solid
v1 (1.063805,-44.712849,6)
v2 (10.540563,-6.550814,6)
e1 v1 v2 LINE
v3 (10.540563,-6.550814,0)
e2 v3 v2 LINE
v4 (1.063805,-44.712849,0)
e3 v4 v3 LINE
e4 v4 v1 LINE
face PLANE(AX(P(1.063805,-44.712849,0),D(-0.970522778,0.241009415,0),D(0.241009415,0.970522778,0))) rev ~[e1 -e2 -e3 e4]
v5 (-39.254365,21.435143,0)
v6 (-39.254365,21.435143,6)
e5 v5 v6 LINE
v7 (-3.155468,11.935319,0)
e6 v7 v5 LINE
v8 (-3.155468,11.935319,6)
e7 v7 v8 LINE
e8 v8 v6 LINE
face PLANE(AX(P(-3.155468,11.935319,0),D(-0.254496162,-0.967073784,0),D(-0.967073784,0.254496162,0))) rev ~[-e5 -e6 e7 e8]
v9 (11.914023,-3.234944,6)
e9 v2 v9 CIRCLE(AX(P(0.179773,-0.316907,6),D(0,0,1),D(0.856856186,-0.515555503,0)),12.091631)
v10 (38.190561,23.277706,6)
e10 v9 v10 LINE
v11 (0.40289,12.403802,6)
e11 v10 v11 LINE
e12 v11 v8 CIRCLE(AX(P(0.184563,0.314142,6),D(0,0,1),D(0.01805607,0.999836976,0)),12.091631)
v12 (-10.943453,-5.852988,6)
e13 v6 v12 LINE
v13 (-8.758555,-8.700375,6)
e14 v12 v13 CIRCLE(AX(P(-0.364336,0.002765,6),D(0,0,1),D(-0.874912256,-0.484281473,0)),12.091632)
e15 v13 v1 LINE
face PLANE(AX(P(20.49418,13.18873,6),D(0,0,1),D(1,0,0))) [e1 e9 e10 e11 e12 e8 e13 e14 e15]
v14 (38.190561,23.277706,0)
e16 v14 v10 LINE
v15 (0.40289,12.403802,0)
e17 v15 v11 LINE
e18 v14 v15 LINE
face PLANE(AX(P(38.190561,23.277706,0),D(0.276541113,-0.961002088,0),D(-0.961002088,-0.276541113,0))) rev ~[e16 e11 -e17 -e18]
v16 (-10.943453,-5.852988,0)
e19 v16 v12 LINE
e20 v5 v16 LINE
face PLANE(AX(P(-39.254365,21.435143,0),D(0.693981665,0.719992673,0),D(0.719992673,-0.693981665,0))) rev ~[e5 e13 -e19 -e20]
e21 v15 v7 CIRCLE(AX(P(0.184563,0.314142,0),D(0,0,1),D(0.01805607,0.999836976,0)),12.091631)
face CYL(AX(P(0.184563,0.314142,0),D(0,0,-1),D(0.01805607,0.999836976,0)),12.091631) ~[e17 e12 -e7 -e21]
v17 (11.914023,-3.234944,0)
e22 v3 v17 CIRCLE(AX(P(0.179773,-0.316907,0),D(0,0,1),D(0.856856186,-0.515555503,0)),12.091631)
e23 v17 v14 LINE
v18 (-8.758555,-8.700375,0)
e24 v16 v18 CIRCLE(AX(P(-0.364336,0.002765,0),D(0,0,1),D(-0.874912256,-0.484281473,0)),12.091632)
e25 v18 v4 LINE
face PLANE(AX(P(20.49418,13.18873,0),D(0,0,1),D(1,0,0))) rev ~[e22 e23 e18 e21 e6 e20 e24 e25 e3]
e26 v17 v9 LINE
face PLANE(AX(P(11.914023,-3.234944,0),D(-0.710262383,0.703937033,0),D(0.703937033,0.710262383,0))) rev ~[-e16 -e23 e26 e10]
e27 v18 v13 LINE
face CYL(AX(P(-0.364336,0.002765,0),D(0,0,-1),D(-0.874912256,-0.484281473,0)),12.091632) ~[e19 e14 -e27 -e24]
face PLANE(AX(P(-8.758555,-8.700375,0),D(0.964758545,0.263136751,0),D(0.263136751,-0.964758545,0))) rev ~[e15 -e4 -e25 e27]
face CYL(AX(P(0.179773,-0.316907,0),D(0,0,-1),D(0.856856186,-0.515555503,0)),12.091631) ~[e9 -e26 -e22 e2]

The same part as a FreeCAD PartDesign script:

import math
import FreeCAD as App
import Part
import Sketcher

V = App.Vector

doc = App.newDocument("Part")
body = doc.addObject("PartDesign::Body", "Body")

# Sketch on XY plane
sketch1 = body.newObject("Sketcher::SketchObject", "Sketch")
sketch1.AttachmentSupport = (doc.getObject("XY_Plane"), [""])
sketch1.MapMode = "FlatFace"
sketch1.addGeometry(Part.ArcOfCircle(Part.Circle(V(0.2, 0.3, 0), V(0, 0, 1), 12.1), math.radians(88.97), math.radians(106.04)), False)
sketch1.addGeometry(Part.LineSegment(V(-3.2, 11.9, 0), V(-39.3, 21.4, 0)), False)
sketch1.addGeometry(Part.LineSegment(V(-39.3, 21.4, 0), V(-10.9, -5.9, 0)), False)
sketch1.addGeometry(Part.ArcOfCircle(Part.Circle(V(-0.4, 0, 0), V(0, 0, 1), 12.1), math.radians(-151.03), math.radians(-133.96)), False)
sketch1.addGeometry(Part.LineSegment(V(-8.8, -8.7, 0), V(1.1, -44.7, 0)), False)
sketch1.addGeometry(Part.LineSegment(V(1.1, -44.7, 0), V(10.5, -6.6, 0)), False)
sketch1.addGeometry(Part.ArcOfCircle(Part.Circle(V(0.2, -0.3, 0), V(0, 0, 1), 12.1), math.radians(-31.03), math.radians(-13.96)), False)
sketch1.addGeometry(Part.LineSegment(V(11.9, -3.2, 0), V(38.2, 23.3, 0)), False)
sketch1.addGeometry(Part.LineSegment(V(38.2, 23.3, 0), V(0.4, 12.4, 0)), False)
sketch1.addConstraint(Sketcher.Constraint("Coincident", 0, 2, 1, 1))
sketch1.addConstraint(Sketcher.Constraint("Coincident", 1, 2, 2, 1))
sketch1.addConstraint(Sketcher.Constraint("Coincident", 2, 2, 3, 1))
sketch1.addConstraint(Sketcher.Constraint("Coincident", 3, 2, 4, 1))
sketch1.addConstraint(Sketcher.Constraint("Coincident", 4, 2, 5, 1))
sketch1.addConstraint(Sketcher.Constraint("Coincident", 5, 2, 6, 1))
sketch1.addConstraint(Sketcher.Constraint("Coincident", 6, 2, 7, 1))
sketch1.addConstraint(Sketcher.Constraint("Coincident", 7, 2, 8, 1))
sketch1.addConstraint(Sketcher.Constraint("Coincident", 8, 2, 0, 1))
sketch1.addConstraint(Sketcher.Constraint("Equal", 0, 3))
sketch1.addConstraint(Sketcher.Constraint("Equal", 3, 6))
sketch1.addConstraint(Sketcher.Constraint("Equal", 1, 4))
sketch1.addConstraint(Sketcher.Constraint("Equal", 2, 5))
sketch1.addConstraint(Sketcher.Constraint("Equal", 4, 7))
sketch1.addConstraint(Sketcher.Constraint("Equal", 5, 8))
sketch1.addConstraint(Sketcher.Constraint("Radius", 0, 12.091631))
sketch1.addConstraint(Sketcher.Constraint("DistanceY", 0, 3, 1, 2, 21.121001))
sketch1.addConstraint(Sketcher.Constraint("DistanceX", 0, 3, 5, 2, 10.356))
sketch1.addConstraint(Sketcher.Constraint("DistanceX", 3, 3, 0, 3, 0.548899))
sketch1.addConstraint(Sketcher.Constraint("Distance", 2, 39.321112))
sketch1.addConstraint(Sketcher.Constraint("DistanceY", -1, 1, 0, 3, 0.314142))
sketch1.addConstraint(Sketcher.Constraint("DistanceY", -1, 1, 0, 2, 11.935319))
sketch1.addConstraint(Sketcher.Constraint("DistanceY", 4, 2, -1, 1, 44.712849))
sketch1.addConstraint(Sketcher.Constraint("DistanceX", -1, 1, 7, 2, 38.190561))
sketch1.addConstraint(Sketcher.Constraint("DistanceX", -1, 1, 8, 2, 0.40289))
sketch1.addConstraint(Sketcher.Constraint("DistanceX", 3, 3, 6, 3, 0.54411))
sketch1.addConstraint(Sketcher.Constraint("DistanceY", 6, 3, 0, 3, 0.631049))
sketch1.addConstraint(Sketcher.Constraint("DistanceX", 1, 2, 3, 3, 38.890029))
sketch1.addConstraint(Sketcher.Constraint("DistanceY", 2, 2, 6, 3, 5.536081))
sketch1.addConstraint(Sketcher.Constraint("DistanceX", 5, 2, 6, 2, 1.37346))
pad1 = body.newObject("PartDesign::Pad", "Pad")
pad1.Profile = sketch1
pad1.Length = 6

doc.recompute()
